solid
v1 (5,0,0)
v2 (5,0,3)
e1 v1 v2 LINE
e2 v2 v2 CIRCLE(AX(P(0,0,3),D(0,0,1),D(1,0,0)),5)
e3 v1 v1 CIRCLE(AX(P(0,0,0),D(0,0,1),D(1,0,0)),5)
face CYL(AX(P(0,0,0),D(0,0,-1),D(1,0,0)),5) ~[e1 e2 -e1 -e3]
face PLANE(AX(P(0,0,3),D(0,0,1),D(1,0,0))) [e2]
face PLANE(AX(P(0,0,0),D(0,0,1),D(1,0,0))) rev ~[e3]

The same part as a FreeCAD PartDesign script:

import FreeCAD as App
import Part
import Sketcher

doc = App.newDocument("Part")
body = doc.addObject("PartDesign::Body", "Body")

sketch1 = body.newObject("Sketcher::SketchObject", "Sketch")
sketch1.AttachmentSupport = (doc.getObject("XY_Plane"), [""])
sketch1.MapMode = "FlatFace"
sketch1.addGeometry(Part.Circle(App.Vector(0, 0, 0), App.Vector(0, 0, 1), 5), False)
sketch1.addConstraint([
    Sketcher.Constraint("Coincident", 0, 3, -1, 1),
    Sketcher.Constraint("Diameter", 0, 10.0),
])
pad1 = body.newObject("PartDesign::Pad", "Pad")
pad1.Profile = sketch1
pad1.Length = 3

doc.recompute()
